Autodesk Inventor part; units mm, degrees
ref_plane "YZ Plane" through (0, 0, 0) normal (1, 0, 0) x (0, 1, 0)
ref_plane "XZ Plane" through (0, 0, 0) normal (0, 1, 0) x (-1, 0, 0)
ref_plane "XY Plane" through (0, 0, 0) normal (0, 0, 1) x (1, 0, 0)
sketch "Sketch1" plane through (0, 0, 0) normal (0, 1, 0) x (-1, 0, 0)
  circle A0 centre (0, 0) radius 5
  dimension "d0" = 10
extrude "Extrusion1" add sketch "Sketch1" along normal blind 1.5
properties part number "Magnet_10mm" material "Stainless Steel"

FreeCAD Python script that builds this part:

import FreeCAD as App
import Part
import Sketcher

doc = App.newDocument("Part")
body = doc.addObject("PartDesign::Body", "Body")

# Sketch on XZ plane
sketch1 = body.newObject("Sketcher::SketchObject", "Sketch")
sketch1.AttachmentSupport = (doc.getObject("XZ_Plane"), [""])
sketch1.MapMode = "FlatFace"
sketch1.addGeometry(Part.Circle(App.Vector(0, 0, 0), App.Vector(0, 0, 1), 5), False)
sketch1.addConstraint(Sketcher.Constraint("Coincident", 0, 3, -1, 1))
sketch1.addConstraint(Sketcher.Constraint("Diameter", 0, 10.0))
pad1 = body.newObject("PartDesign::Pad", "Pad")
pad1.Profile = sketch1
pad1.Length = 1.5
pad1.Reversed = True

doc.recompute()
